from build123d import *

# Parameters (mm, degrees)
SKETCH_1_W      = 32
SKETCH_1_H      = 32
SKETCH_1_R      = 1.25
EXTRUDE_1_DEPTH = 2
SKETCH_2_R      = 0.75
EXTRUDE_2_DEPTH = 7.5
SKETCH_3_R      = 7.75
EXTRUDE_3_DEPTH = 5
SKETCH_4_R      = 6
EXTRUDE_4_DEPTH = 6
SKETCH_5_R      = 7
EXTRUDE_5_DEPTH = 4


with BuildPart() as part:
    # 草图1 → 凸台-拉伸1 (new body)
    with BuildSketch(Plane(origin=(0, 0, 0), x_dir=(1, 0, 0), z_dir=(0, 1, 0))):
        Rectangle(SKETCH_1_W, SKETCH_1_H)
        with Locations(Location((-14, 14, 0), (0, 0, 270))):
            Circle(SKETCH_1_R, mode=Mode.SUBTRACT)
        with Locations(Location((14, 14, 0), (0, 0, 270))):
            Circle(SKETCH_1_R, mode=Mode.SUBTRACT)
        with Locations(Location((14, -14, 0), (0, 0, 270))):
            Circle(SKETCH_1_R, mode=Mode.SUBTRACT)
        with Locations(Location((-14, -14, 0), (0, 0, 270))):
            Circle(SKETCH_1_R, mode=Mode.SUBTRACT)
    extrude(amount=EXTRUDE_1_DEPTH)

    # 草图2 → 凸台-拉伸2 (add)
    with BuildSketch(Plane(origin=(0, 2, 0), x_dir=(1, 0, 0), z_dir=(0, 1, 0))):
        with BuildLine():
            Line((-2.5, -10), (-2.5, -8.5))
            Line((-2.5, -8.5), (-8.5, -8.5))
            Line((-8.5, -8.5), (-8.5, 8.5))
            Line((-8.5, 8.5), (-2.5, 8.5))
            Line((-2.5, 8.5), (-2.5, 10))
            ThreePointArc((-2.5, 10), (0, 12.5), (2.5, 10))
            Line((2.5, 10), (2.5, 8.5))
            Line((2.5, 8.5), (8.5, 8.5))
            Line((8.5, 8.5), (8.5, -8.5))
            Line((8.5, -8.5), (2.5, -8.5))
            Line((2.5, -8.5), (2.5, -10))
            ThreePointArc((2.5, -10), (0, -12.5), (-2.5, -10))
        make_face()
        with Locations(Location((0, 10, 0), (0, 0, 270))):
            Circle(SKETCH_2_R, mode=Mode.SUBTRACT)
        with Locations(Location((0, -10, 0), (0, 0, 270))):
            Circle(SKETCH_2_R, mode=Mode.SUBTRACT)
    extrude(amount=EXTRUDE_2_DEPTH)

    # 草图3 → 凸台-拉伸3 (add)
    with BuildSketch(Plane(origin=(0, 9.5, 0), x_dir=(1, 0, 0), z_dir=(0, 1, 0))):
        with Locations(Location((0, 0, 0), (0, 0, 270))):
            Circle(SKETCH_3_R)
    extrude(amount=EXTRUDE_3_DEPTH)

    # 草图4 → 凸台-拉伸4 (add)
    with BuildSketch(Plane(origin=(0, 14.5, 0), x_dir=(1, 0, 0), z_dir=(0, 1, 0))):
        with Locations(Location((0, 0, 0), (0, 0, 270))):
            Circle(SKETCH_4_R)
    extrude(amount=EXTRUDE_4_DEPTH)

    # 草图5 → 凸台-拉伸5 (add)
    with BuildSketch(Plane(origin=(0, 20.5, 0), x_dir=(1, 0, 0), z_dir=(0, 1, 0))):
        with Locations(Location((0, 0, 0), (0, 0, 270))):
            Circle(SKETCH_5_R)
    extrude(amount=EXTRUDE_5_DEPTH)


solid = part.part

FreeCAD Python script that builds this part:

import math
import FreeCAD as App
import Part
import Sketcher

V = App.Vector

doc = App.newDocument("Part")
body = doc.addObject("PartDesign::Body", "Body")

sketch1 = doc.addObject("Sketcher::SketchObject", "Sketch")
body.addObject(sketch1)
sketch1.AttachmentSupport = (doc.XZ_Plane, [""])
sketch1.MapMode = "FlatFace"
sketch1.addGeometry(Part.LineSegment(V(-16, -16, 0), V(-16, 16, 0)), False)
sketch1.addGeometry(Part.LineSegment(V(-16, 16, 0), V(16, 16, 0)), False)
sketch1.addGeometry(Part.LineSegment(V(16, 16, 0), V(16, -16, 0)), False)
sketch1.addGeometry(Part.LineSegment(V(16, -16, 0), V(-16, -16, 0)), False)
sketch1.addGeometry(Part.Circle(V(-14, 14, 0), V(0, 0, 1), 1.2), False)
sketch1.addGeometry(Part.Circle(V(14, 14, 0), V(0, 0, 1), 1.2), False)
sketch1.addGeometry(Part.Circle(V(-14, -14, 0), V(0, 0, 1), 1.2), False)
sketch1.addGeometry(Part.Circle(V(14, -14, 0), V(0, 0, 1), 1.2), False)
sketch1.addConstraint(Sketcher.Constraint("Coincident", 0, 2, 1, 1))
sketch1.addConstraint(Sketcher.Constraint("Coincident", 1, 2, 2, 1))
sketch1.addConstraint(Sketcher.Constraint("Coincident", 2, 2, 3, 1))
sketch1.addConstraint(Sketcher.Constraint("Coincident", 3, 2, 0, 1))
sketch1.addConstraint(Sketcher.Constraint("Vertical", 0))
sketch1.addConstraint(Sketcher.Constraint("Horizontal", 1))
sketch1.addConstraint(Sketcher.Constraint("Vertical", 2))
sketch1.addConstraint(Sketcher.Constraint("Horizontal", 3))
sketch1.addConstraint(Sketcher.Constraint("Equal", 4, 5))
sketch1.addConstraint(Sketcher.Constraint("Equal", 5, 6))
sketch1.addConstraint(Sketcher.Constraint("Equal", 6, 7))
sketch1.addConstraint(Sketcher.Constraint("Symmetric", 5, 3, 6, 3, -1, 1))
sketch1.addConstraint(Sketcher.Constraint("Symmetric", 4, 3, 7, 3, -1, 1))
sketch1.addConstraint(Sketcher.Constraint("Symmetric", 0, 2, 2, 2, -1, 1))
sketch1.addConstraint(Sketcher.Constraint("Symmetric", 4, 3, 5, 3, -2))
sketch1.addConstraint(Sketcher.Constraint("Equal", 3, 0))
sketch1.addConstraint(Sketcher.Constraint("Diameter", 4, 2.5))
sketch1.addConstraint(Sketcher.Constraint("DistanceX", 1, 1, 1, 2, 32.0))
sketch1.addConstraint(Sketcher.Constraint("DistanceX", 4, 3, -1, 1, 14.0))
sketch1.addConstraint(Sketcher.Constraint("DistanceY", -1, 1, 4, 3, 14.0))
pad1 = doc.addObject("PartDesign::Pad", "Pad")
body.addObject(pad1)
pad1.Profile = sketch1
pad1.Length = 2
pad1.Reversed = True

sketch2 = doc.addObject("Sketcher::SketchObject", "Sketch001")
body.addObject(sketch2)
sketch2.AttachmentSupport = (doc.XZ_Plane, [""])
sketch2.MapMode = "FlatFace"
sketch2.AttachmentOffset = App.Placement(V(0, 0, -2), App.Rotation())
sketch2.addGeometry(Part.LineSegment(V(-2.5, 8.5, 0), V(-2.5, 10, 0)), False)
sketch2.addGeometry(Part.ArcOfCircle(Part.Circle(V(0, 10, 0), V(0, 0, 1), 2.5), math.radians(0), math.radians(180)), False)
sketch2.addGeometry(Part.LineSegment(V(2.5, 10, 0), V(2.5, 8.5, 0)), False)
sketch2.addGeometry(Part.LineSegment(V(2.5, 8.5, 0), V(8.5, 8.5, 0)), False)
sketch2.addGeometry(Part.LineSegment(V(8.5, 8.5, 0), V(8.5, -8.5, 0)), False)
sketch2.addGeometry(Part.LineSegment(V(8.5, -8.5, 0), V(2.5, -8.5, 0)), False)
sketch2.addGeometry(Part.LineSegment(V(2.5, -8.5, 0), V(2.5, -10, 0)), False)
sketch2.addGeometry(Part.ArcOfCircle(Part.Circle(V(0, -10, 0), V(0, 0, 1), 2.5), math.radians(180), math.radians(360)), False)
sketch2.addGeometry(Part.LineSegment(V(-2.5, -10, 0), V(-2.5, -8.5, 0)), False)
sketch2.addGeometry(Part.LineSegment(V(-2.5, -8.5, 0), V(-8.5, -8.5, 0)), False)
sketch2.addGeometry(Part.LineSegment(V(-8.5, -8.5, 0), V(-8.5, 8.5, 0)), False)
sketch2.addGeometry(Part.LineSegment(V(-8.5, 8.5, 0), V(-2.5, 8.5, 0)), False)
sketch2.addGeometry(Part.Circle(V(0, 10, 0), V(0, 0, 1), 0.8), False)
sketch2.addGeometry(Part.Circle(V(0, -10, 0), V(0, 0, 1), 0.8), False)
sketch2.addConstraint(Sketcher.Constraint("Tangent", 0, 2, 1, 2))
sketch2.addConstraint(Sketcher.Constraint("Tangent", 1, 1, 2, 1))
sketch2.addConstraint(Sketcher.Constraint("Coincident", 2, 2, 3, 1))
sketch2.addConstraint(Sketcher.Constraint("Coincident", 3, 2, 4, 1))
sketch2.addConstraint(Sketcher.Constraint("Coincident", 4, 2, 5, 1))
sketch2.addConstraint(Sketcher.Constraint("Coincident", 5, 2, 6, 1))
sketch2.addConstraint(Sketcher.Constraint("Tangent", 6, 2, 7, 2))
sketch2.addConstraint(Sketcher.Constraint("Tangent", 7, 1, 8, 1))
sketch2.addConstraint(Sketcher.Constraint("Coincident", 8, 2, 9, 1))
sketch2.addConstraint(Sketcher.Constraint("Coincident", 9, 2, 10, 1))
sketch2.addConstraint(Sketcher.Constraint("Coincident", 10, 2, 11, 1))
sketch2.addConstraint(Sketcher.Constraint("Coincident", 11, 2, 0, 1))
sketch2.addConstraint(Sketcher.Constraint("Vertical", 0))
sketch2.addConstraint(Sketcher.Constraint("Vertical", 2))
sketch2.addConstraint(Sketcher.Constraint("Horizontal", 3))
sketch2.addConstraint(Sketcher.Constraint("Vertical", 4))
sketch2.addConstraint(Sketcher.Constraint("Horizontal", 5))
sketch2.addConstraint(Sketcher.Constraint("Vertical", 6))
sketch2.addConstraint(Sketcher.Constraint("Vertical", 8))
sketch2.addConstraint(Sketcher.Constraint("Horizontal", 9))
sketch2.addConstraint(Sketcher.Constraint("Vertical", 10))
sketch2.addConstraint(Sketcher.Constraint("Horizontal", 11))
sketch2.addConstraint(Sketcher.Constraint("Coincident", 12, 3, 1, 3))
sketch2.addConstraint(Sketcher.Constraint("Coincident", 13, 3, 7, 3))
sketch2.addConstraint(Sketcher.Constraint("Equal", 1, 7))
sketch2.addConstraint(Sketcher.Constraint("Equal", 12, 13))
sketch2.addConstraint(Sketcher.Constraint("Symmetric", 1, 3, 7, 3, -1, 1))
sketch2.addConstraint(Sketcher.Constraint("Symmetric", 3, 2, 9, 2, -1, 1))
sketch2.addConstraint(Sketcher.Constraint("Symmetric", 5, 2, 8, 2, -2))
sketch2.addConstraint(Sketcher.Constraint("Horizontal", 3, 2, 10, 2))
sketch2.addConstraint(Sketcher.Constraint("Diameter", 12, 1.5))
sketch2.addConstraint(Sketcher.Constraint("Radius", 1, 2.5))
sketch2.addConstraint(Sketcher.Constraint("DistanceX", 3, 1, 3, 2, 6.0))
sketch2.addConstraint(Sketcher.Constraint("DistanceY", 4, 2, 4, 1, 17.0))
sketch2.addConstraint(Sketcher.Constraint("DistanceY", 0, 1, 0, 2, 1.5))
pad2 = doc.addObject("PartDesign::Pad", "Pad001")
body.addObject(pad2)
pad2.Profile = sketch2
pad2.Length = 7.5
pad2.Reversed = True

sketch3 = doc.addObject("Sketcher::SketchObject", "Sketch002")
body.addObject(sketch3)
sketch3.AttachmentSupport = (doc.XZ_Plane, [""])
sketch3.MapMode = "FlatFace"
sketch3.AttachmentOffset = App.Placement(V(0, 0, -9.5), App.Rotation())
sketch3.addGeometry(Part.Circle(V(0, 0, 0), V(0, 0, 1), 8), False)
sketch3.addConstraint(Sketcher.Constraint("Coincident", 0, 3, -1, 1))
sketch3.addConstraint(Sketcher.Constraint("Diameter", 0, 15.5))
pad3 = doc.addObject("PartDesign::Pad", "Pad002")
body.addObject(pad3)
pad3.Profile = sketch3
pad3.Length = 5
pad3.Reversed = True

sketch4 = doc.addObject("Sketcher::SketchObject", "Sketch003")
body.addObject(sketch4)
sketch4.AttachmentSupport = (doc.XZ_Plane, [""])
sketch4.MapMode = "FlatFace"
sketch4.AttachmentOffset = App.Placement(V(0, 0, -14.5), App.Rotation())
sketch4.addGeometry(Part.Circle(V(0, 0, 0), V(0, 0, 1), 6), False)
sketch4.addConstraint(Sketcher.Constraint("Coincident", 0, 3, -1, 1))
sketch4.addConstraint(Sketcher.Constraint("Diameter", 0, 12.0))
pad4 = doc.addObject("PartDesign::Pad", "Pad003")
body.addObject(pad4)
pad4.Profile = sketch4
pad4.Length = 6
pad4.Reversed = True

sketch5 = doc.addObject("Sketcher::SketchObject", "Sketch004")
body.addObject(sketch5)
sketch5.AttachmentSupport = (doc.XZ_Plane, [""])
sketch5.MapMode = "FlatFace"
sketch5.AttachmentOffset = App.Placement(V(0, 0, -20.5), App.Rotation())
sketch5.addGeometry(Part.Circle(V(0, 0, 0), V(0, 0, 1), 7), False)
sketch5.addConstraint(Sketcher.Constraint("Coincident", 0, 3, -1, 1))
sketch5.addConstraint(Sketcher.Constraint("Diameter", 0, 14.0))
pad5 = doc.addObject("PartDesign::Pad", "Pad004")
body.addObject(pad5)
pad5.Profile = sketch5
pad5.Length = 4
pad5.Reversed = True

doc.recompute()
